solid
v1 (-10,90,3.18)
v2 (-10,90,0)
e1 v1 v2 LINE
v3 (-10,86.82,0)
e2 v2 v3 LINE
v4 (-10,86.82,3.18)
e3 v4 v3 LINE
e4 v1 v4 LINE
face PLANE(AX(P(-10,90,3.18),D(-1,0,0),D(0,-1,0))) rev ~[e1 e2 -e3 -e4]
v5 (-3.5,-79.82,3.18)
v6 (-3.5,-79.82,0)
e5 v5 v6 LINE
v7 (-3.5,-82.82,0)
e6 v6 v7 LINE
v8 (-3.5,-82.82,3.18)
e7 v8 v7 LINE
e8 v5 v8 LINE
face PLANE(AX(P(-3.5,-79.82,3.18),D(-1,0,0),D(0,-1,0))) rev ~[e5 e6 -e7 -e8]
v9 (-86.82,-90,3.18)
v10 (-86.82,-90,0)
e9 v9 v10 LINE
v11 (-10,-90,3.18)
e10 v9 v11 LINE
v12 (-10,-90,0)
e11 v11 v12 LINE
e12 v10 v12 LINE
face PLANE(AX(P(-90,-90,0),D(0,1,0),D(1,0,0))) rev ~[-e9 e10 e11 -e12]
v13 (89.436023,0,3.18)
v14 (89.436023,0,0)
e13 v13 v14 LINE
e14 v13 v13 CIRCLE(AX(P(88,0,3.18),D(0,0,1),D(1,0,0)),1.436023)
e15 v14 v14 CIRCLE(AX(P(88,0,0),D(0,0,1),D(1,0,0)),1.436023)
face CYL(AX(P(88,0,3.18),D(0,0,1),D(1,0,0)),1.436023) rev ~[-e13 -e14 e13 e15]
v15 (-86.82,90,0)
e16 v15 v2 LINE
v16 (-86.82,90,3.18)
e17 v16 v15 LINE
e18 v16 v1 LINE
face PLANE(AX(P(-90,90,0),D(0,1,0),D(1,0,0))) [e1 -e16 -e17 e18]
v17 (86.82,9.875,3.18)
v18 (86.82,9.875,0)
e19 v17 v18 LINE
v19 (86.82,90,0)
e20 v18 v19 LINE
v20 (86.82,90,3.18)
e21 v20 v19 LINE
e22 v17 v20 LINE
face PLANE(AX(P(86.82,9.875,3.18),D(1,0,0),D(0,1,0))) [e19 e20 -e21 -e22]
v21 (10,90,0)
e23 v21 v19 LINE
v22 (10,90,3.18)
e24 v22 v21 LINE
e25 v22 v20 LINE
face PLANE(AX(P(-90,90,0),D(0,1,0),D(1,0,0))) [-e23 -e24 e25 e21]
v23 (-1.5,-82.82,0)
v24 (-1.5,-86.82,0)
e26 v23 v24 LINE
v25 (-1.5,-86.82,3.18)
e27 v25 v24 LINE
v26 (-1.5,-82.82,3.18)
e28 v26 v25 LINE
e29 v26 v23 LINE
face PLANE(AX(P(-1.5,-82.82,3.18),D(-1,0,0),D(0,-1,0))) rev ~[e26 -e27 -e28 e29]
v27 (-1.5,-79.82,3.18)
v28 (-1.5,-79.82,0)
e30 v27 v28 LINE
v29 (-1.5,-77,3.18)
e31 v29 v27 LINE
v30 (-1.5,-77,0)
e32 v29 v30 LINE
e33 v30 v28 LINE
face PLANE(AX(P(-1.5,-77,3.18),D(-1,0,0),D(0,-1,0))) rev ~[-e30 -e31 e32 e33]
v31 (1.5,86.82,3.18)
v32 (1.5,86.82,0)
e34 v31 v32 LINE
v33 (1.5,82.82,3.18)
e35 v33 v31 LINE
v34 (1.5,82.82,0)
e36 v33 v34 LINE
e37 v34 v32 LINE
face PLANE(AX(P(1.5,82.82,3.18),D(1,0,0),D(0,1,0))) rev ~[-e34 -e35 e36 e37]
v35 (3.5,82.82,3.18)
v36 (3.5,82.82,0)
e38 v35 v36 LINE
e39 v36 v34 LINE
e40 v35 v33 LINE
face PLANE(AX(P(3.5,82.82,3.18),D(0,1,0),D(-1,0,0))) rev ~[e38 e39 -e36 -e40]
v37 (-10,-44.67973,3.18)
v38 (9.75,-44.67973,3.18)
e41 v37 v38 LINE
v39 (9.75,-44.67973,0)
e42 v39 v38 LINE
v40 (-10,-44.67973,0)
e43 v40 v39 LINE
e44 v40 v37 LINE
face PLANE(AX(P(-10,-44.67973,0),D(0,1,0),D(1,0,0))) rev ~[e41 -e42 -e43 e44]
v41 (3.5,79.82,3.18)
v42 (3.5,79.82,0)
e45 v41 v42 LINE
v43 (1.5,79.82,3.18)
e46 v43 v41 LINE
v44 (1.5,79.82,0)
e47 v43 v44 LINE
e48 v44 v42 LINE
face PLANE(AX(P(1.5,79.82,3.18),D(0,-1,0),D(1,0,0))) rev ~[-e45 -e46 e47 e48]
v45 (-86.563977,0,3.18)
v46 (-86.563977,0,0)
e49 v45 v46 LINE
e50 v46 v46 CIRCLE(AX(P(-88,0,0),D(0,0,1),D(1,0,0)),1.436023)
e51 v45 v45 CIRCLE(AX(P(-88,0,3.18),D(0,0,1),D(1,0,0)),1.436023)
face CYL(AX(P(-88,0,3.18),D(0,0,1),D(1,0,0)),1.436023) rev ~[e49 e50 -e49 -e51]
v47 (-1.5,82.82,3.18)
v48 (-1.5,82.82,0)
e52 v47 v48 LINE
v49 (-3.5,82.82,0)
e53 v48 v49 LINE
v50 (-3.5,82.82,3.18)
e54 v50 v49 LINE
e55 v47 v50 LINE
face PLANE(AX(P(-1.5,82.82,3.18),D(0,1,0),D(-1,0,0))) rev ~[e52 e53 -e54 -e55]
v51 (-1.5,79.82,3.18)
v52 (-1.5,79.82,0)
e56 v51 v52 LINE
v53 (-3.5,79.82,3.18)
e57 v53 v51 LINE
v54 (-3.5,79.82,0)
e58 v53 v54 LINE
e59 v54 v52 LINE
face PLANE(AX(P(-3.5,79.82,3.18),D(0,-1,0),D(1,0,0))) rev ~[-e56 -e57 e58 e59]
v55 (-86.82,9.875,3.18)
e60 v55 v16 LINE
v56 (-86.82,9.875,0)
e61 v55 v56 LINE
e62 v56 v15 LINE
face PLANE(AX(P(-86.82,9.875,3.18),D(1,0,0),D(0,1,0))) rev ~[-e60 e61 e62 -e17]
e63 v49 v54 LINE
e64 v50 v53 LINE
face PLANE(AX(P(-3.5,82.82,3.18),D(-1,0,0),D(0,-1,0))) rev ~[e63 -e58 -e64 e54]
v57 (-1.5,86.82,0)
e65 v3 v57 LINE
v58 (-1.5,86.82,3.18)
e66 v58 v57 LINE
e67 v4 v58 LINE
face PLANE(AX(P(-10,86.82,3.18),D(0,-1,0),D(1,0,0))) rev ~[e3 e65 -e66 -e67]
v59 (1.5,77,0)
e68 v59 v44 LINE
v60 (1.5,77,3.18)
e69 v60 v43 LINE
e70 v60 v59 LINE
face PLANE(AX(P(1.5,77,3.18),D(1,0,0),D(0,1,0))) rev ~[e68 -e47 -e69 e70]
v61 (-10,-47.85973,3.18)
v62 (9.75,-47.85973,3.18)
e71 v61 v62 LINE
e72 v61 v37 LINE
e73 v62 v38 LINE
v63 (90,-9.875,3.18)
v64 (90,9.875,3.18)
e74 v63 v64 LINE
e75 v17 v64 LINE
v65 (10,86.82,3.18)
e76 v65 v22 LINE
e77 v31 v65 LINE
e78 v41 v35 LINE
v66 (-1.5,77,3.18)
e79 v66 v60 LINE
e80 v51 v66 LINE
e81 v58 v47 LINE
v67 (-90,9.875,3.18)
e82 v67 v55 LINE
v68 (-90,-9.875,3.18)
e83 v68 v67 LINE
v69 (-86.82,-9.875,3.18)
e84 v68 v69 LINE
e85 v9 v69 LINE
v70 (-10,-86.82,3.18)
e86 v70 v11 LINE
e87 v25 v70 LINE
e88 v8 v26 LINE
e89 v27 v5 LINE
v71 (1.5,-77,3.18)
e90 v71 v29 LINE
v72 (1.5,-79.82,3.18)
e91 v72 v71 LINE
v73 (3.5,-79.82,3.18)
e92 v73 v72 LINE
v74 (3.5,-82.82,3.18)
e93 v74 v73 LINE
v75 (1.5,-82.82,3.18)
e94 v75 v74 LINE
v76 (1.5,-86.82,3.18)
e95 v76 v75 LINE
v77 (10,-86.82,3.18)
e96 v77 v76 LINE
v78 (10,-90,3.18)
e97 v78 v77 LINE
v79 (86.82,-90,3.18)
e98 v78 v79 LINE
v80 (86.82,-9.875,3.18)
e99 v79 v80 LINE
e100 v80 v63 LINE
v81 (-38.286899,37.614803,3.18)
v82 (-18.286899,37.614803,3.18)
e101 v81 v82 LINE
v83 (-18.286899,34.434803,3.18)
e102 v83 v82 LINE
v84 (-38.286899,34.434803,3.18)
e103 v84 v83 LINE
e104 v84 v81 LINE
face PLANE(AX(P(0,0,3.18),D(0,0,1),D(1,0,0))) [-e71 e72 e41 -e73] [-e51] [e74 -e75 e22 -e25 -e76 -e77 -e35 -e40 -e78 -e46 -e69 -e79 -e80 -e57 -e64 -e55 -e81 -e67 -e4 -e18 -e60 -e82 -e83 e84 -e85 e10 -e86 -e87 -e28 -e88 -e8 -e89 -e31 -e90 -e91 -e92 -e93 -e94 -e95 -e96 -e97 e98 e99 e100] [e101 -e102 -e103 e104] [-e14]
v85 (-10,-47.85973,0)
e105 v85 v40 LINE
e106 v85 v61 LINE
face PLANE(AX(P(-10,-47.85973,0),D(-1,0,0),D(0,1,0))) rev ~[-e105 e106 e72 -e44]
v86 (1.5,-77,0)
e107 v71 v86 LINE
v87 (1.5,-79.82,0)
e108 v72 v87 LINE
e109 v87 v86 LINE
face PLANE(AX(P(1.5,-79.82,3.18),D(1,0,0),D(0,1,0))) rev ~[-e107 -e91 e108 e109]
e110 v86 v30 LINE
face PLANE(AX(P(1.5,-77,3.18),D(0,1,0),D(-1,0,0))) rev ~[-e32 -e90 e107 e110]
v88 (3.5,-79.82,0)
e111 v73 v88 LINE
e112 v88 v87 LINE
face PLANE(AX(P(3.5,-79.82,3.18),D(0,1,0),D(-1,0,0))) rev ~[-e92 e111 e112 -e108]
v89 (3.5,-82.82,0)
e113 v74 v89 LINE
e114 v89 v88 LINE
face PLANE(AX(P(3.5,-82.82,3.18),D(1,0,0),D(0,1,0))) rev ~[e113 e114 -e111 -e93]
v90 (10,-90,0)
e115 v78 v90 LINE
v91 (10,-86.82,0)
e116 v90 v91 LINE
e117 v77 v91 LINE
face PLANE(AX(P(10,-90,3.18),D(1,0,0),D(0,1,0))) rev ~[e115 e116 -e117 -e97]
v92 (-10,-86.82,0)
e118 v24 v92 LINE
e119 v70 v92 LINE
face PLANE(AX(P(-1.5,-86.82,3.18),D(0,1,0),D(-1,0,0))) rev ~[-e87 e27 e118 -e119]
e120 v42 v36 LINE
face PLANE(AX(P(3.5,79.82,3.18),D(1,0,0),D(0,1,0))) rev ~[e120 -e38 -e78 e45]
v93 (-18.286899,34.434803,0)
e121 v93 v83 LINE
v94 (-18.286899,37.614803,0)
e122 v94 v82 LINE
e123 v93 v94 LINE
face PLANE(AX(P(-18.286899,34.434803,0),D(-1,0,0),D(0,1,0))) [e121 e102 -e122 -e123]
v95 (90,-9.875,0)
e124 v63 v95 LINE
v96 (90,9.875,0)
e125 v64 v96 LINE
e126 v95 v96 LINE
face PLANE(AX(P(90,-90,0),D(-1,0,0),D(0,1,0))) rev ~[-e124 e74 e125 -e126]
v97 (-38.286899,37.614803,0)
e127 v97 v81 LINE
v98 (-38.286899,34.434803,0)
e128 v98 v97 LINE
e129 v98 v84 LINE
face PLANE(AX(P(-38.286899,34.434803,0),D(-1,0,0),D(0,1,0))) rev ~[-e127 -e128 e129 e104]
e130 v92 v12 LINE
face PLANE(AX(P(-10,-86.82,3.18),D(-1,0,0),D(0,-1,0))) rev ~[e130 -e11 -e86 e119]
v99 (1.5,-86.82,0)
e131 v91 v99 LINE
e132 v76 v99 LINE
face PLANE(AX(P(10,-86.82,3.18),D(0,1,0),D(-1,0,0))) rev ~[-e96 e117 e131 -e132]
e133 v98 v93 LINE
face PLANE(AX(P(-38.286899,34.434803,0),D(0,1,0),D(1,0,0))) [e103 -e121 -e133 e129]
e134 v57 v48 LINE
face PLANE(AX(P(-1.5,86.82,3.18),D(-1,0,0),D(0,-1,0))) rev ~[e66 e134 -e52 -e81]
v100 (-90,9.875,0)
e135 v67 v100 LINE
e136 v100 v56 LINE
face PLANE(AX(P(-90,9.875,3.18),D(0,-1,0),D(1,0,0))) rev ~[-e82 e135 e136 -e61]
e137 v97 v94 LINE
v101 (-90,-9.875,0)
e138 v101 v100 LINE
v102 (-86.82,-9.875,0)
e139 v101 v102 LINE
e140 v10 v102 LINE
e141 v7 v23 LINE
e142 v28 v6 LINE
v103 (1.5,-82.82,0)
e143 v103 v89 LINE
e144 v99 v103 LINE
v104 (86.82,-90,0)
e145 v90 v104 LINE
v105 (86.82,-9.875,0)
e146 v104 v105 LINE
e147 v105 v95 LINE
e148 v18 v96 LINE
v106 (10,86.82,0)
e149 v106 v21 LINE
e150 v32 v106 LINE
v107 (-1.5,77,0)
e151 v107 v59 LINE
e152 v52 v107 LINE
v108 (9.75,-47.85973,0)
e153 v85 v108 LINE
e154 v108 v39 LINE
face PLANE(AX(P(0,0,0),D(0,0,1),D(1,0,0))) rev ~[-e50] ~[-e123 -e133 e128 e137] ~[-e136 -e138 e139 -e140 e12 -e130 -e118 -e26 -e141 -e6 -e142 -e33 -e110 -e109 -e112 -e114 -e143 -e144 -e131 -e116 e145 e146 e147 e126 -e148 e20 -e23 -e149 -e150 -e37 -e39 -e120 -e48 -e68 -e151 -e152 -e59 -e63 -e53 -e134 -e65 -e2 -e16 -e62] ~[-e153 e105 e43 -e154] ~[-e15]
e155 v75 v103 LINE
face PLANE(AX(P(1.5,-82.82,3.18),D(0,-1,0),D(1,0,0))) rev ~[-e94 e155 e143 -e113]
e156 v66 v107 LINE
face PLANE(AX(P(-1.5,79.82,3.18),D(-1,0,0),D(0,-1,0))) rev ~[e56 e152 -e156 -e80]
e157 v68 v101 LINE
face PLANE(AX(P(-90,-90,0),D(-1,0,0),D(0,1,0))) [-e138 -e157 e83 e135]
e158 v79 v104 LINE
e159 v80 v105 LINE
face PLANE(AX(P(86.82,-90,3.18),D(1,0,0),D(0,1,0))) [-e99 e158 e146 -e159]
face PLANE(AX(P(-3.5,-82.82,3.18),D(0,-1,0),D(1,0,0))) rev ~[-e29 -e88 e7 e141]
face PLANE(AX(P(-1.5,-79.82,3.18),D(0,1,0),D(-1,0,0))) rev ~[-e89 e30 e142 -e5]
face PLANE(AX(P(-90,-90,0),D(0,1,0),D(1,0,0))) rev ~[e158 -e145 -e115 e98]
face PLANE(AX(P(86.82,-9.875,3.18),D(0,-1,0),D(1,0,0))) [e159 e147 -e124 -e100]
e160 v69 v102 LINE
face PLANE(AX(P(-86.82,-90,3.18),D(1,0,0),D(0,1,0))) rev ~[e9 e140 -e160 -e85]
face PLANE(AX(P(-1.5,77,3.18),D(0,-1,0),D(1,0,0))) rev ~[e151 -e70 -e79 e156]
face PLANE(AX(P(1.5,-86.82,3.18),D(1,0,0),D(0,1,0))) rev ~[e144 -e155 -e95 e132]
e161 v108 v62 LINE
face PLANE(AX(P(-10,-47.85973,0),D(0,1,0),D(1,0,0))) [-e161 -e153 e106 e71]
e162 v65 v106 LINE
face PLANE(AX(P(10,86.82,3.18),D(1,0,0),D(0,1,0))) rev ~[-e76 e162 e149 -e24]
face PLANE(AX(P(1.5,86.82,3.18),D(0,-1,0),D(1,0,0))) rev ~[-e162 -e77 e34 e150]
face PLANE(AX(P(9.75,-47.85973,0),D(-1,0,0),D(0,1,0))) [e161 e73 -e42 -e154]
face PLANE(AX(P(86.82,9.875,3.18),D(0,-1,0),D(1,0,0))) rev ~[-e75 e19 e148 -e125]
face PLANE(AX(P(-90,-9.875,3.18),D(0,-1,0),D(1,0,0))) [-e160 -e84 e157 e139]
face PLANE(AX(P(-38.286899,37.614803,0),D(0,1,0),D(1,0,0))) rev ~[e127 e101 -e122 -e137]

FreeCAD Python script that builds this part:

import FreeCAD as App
import Part
import Sketcher
from FreeCAD import Vector
Q = App.Units.Quantity


def add_polygon(sketch, points):
    """Adds a closed chain of lines whose ends are joined by coincident constraints."""
    first, n = sketch.GeometryCount, len(points)
    for a, b in zip(points, points[1:] + points[:1]):
        sketch.addGeometry(Part.LineSegment(App.Vector(*a, 0), App.Vector(*b, 0)), False)
    for i in range(n):
        sketch.addConstraint(Sketcher.Constraint("Coincident", first + i, 2, first + (i + 1) % n, 1))

doc = App.newDocument("Part")
body = doc.addObject("PartDesign::Body", "Body")

# Sketch on XY plane
sketch1 = body.newObject("Sketcher::SketchObject", "Sketch")
sketch1.AttachmentSupport = (doc.getObject("XY_Plane"), [""])
sketch1.MapMode = "FlatFace"
add_polygon(sketch1, [(-90, 90), (-90, -90), (90, -90), (90, 90)])  # lines 0-3
add_polygon(sketch1, [(9.75, -47.85973), (-10, -47.85973), (-10, -44.67973), (9.75, -44.67973)])  # lines 4-7
add_polygon(sketch1, [(-18.286899, 34.434803), (-38.286899, 34.434803), (-38.286899, 37.614803), (-18.286899, 37.614803)])  # lines 8-11
sketch1.addConstraint([
    Sketcher.Constraint("Vertical", 0),
    Sketcher.Constraint("Horizontal", 1),
    Sketcher.Constraint("Vertical", 2),
    Sketcher.Constraint("Horizontal", 3),
    Sketcher.Constraint("Horizontal", 4),
    Sketcher.Constraint("Vertical", 5),
    Sketcher.Constraint("Horizontal", 6),
    Sketcher.Constraint("Vertical", 7),
    Sketcher.Constraint("Horizontal", 8),
    Sketcher.Constraint("Vertical", 9),
    Sketcher.Constraint("Horizontal", 10),
    Sketcher.Constraint("Vertical", 11),
    Sketcher.Constraint("Symmetric", 0, 2, 2, 2, -1, 1),
    Sketcher.Constraint("Equal", 3, 0),
    Sketcher.Constraint("Equal", 7, 9),
    Sketcher.Constraint("DistanceX", 1, 1, 1, 2, Q("180 mm")),
    Sketcher.Constraint("DistanceX", 8, 2, 8, 1, Q("20 mm")),
    Sketcher.Constraint("DistanceX", 4, 2, -1, 1, Q("10 mm")),
    Sketcher.Constraint("DistanceX", 4, 2, 4, 1, Q("19.75 mm")),
    Sketcher.Constraint("DistanceY", 5, 1, 5, 2, Q("3.18 mm")),
    Sketcher.Constraint("DistanceX", 8, 2, -1, 1, Q("38.286899 mm")),
    Sketcher.Constraint("DistanceY", 4, 2, -1, 1, Q("47.85973 mm")),
    Sketcher.Constraint("DistanceY", -1, 1, 8, 2, Q("34.434803 mm")),
])
pad1 = body.newObject("PartDesign::Pad", "Pad")
pad1.Profile = sketch1
pad1.Length = 3.18

# Sketch on XY plane
sketch2 = body.newObject("Sketcher::SketchObject", "Sketch001")
sketch2.AttachmentSupport = (doc.getObject("XY_Plane"), [""])
sketch2.MapMode = "FlatFace"
sketch2.AttachmentOffset = App.Placement(Vector(0, 0, 3.18), App.Rotation())
add_polygon(sketch2, [(1.5, 86.82), (10, 86.82), (10, 90), (-10, 90), (-10, 86.82), (-1.5, 86.82), (-1.5, 82.82), (-3.5, 82.82), (-3.5, 79.82), (-1.5, 79.82), (-1.5, 77), (1.5, 77), (1.5, 79.82), (3.5, 79.82), (3.5, 82.82), (1.5, 82.82)])  # lines 0-15
add_polygon(sketch2, [(1.5, -79.82), (1.5, -77), (-1.5, -77), (-1.5, -79.82), (-3.5, -79.82), (-3.5, -82.82), (-1.5, -82.82), (-1.5, -86.82), (-10, -86.82), (-10, -90), (10, -90), (10, -86.82), (1.5, -86.82), (1.5, -82.82), (3.5, -82.82), (3.5, -79.82)])  # lines 16-31
sketch2.addConstraint([
    Sketcher.Constraint("Horizontal", 0),
    Sketcher.Constraint("Vertical", 1),
    Sketcher.Constraint("Horizontal", 2),
    Sketcher.Constraint("Vertical", 3),
    Sketcher.Constraint("Horizontal", 4),
    Sketcher.Constraint("Vertical", 5),
    Sketcher.Constraint("Horizontal", 6),
    Sketcher.Constraint("Vertical", 7),
    Sketcher.Constraint("Horizontal", 8),
    Sketcher.Constraint("Vertical", 9),
    Sketcher.Constraint("Horizontal", 10),
    Sketcher.Constraint("Vertical", 11),
    Sketcher.Constraint("Horizontal", 12),
    Sketcher.Constraint("Vertical", 13),
    Sketcher.Constraint("Horizontal", 14),
    Sketcher.Constraint("Vertical", 15),
    Sketcher.Constraint("Vertical", 16),
    Sketcher.Constraint("Horizontal", 17),
    Sketcher.Constraint("Vertical", 18),
    Sketcher.Constraint("Horizontal", 19),
    Sketcher.Constraint("Vertical", 20),
    Sketcher.Constraint("Horizontal", 21),
    Sketcher.Constraint("Vertical", 22),
    Sketcher.Constraint("Horizontal", 23),
    Sketcher.Constraint("Vertical", 24),
    Sketcher.Constraint("Horizontal", 25),
    Sketcher.Constraint("Vertical", 26),
    Sketcher.Constraint("Horizontal", 27),
    Sketcher.Constraint("Vertical", 28),
    Sketcher.Constraint("Horizontal", 29),
    Sketcher.Constraint("Vertical", 30),
    Sketcher.Constraint("Horizontal", 31),
    Sketcher.Constraint("Symmetric", 9, 2, 16, 2, -1, 1),
    Sketcher.Constraint("Symmetric", 11, 2, 18, 2, -1, 1),
    Sketcher.Constraint("Symmetric", 13, 2, 20, 2, -1, 1),
    Sketcher.Constraint("Symmetric", 15, 2, 22, 2, -1, 1),
    Sketcher.Constraint("Symmetric", 1, 2, 24, 2, -1, 1),
    Sketcher.Constraint("Symmetric", 3, 2, 26, 2, -1, 1),
    Sketcher.Constraint("Symmetric", 5, 2, 28, 2, -1, 1),
    Sketcher.Constraint("Symmetric", 7, 2, 30, 2, -1, 1),
    Sketcher.Constraint("Symmetric", 0, 2, 3, 2, -2),
    Sketcher.Constraint("Symmetric", 8, 2, 11, 2, -2),
    Sketcher.Constraint("Symmetric", 6, 2, 13, 2, -2),
    Sketcher.Constraint("Vertical", 5, 2, 8, 2),
    Sketcher.Constraint("Vertical", 11, 2, 14, 2),
    Sketcher.Constraint("Equal", 17, 7),
    Sketcher.Constraint("DistanceX", 2, 2, 2, 1, Q("20 mm")),
    Sketcher.Constraint("DistanceX", 6, 2, 6, 1, Q("2 mm")),
    Sketcher.Constraint("DistanceX", 10, 1, 10, 2, Q("3 mm")),
    Sketcher.Constraint("DistanceY", 5, 2, 5, 1, Q("4 mm")),
    Sketcher.Constraint("DistanceY", -1, 1, 1, 2, Q("90 mm")),
    Sketcher.Constraint("DistanceY", -1, 1, 9, 2, Q("77 mm")),
    Sketcher.Constraint("DistanceY", 1, 1, 1, 2, Q("3.18 mm")),
])
pocket1 = body.newObject("PartDesign::Pocket", "Pocket")
pocket1.Profile = sketch2
pocket1.Type = "ThroughAll"

# Sketch on XY plane
sketch3 = body.newObject("Sketcher::SketchObject", "Sketch002")
sketch3.AttachmentSupport = (doc.getObject("XY_Plane"), [""])
sketch3.MapMode = "FlatFace"
sketch3.AttachmentOffset = App.Placement(Vector(0, 0, 3.18), App.Rotation())
sketch3.addGeometry(Part.Circle(Vector(-88, 0, 0), Vector(0, 0, 1), 1.436023), False)  # 0
sketch3.addGeometry(Part.Circle(Vector(88, 0, 0), Vector(0, 0, 1), 1.436023), False)  # 1
add_polygon(sketch3, [(-90, 90), (-90, 9.875), (-86.82, 9.875), (-86.82, 90)])  # lines 2-5
add_polygon(sketch3, [(-90, -9.875), (-90, -90), (-86.82, -90), (-86.82, -9.875)])  # lines 6-9
add_polygon(sketch3, [(86.82, -9.875), (86.82, -90), (90, -90), (90, -9.875)])  # lines 10-13
add_polygon(sketch3, [(86.82, 90), (86.82, 9.875), (90, 9.875), (90, 90)])  # lines 14-17
sketch3.addConstraint([
    Sketcher.Constraint("Vertical", 2),
    Sketcher.Constraint("Horizontal", 3),
    Sketcher.Constraint("Vertical", 4),
    Sketcher.Constraint("Horizontal", 5),
    Sketcher.Constraint("Vertical", 6),
    Sketcher.Constraint("Horizontal", 7),
    Sketcher.Constraint("Vertical", 8),
    Sketcher.Constraint("Horizontal", 9),
    Sketcher.Constraint("Vertical", 10),
    Sketcher.Constraint("Horizontal", 11),
    Sketcher.Constraint("Vertical", 12),
    Sketcher.Constraint("Horizontal", 13),
    Sketcher.Constraint("Vertical", 14),
    Sketcher.Constraint("Horizontal", 15),
    Sketcher.Constraint("Vertical", 16),
    Sketcher.Constraint("Horizontal", 17),
    Sketcher.Constraint("Equal", 0, 1),
    Sketcher.Constraint("Symmetric", 0, 3, 1, 3, -1, 1),
    Sketcher.Constraint("Symmetric", 4, 2, 10, 2, -1, 1),
    Sketcher.Constraint("Symmetric", 2, 2, 12, 2, -1, 1),
    Sketcher.Constraint("Symmetric", 8, 2, 14, 2, -1, 1),
    Sketcher.Constraint("Symmetric", 6, 2, 16, 2, -1, 1),
    Sketcher.Constraint("Symmetric", 7, 2, 10, 2, -2),
    Sketcher.Constraint("Symmetric", 9, 2, 12, 2, -2),
    Sketcher.Constraint("PointOnObject", 0, 3, -1),
    Sketcher.Constraint("DistanceX", 0, 3, -1, 1, Q("88 mm")),
    Sketcher.Constraint("DistanceX", 2, 2, -1, 1, Q("90 mm")),
    Sketcher.Constraint("DistanceY", -1, 1, 4, 2, Q("90 mm")),
    Sketcher.Constraint("DistanceX", 3, 1, 3, 2, Q("3.18 mm")),
    Sketcher.Constraint("DistanceY", 2, 2, 2, 1, Q("80.125 mm")),
    Sketcher.Constraint("Diameter", 0, Q("2.872046 mm")),
])
pocket2 = body.newObject("PartDesign::Pocket", "Pocket001")
pocket2.Profile = sketch3
pocket2.Type = "ThroughAll"

doc.recompute()
